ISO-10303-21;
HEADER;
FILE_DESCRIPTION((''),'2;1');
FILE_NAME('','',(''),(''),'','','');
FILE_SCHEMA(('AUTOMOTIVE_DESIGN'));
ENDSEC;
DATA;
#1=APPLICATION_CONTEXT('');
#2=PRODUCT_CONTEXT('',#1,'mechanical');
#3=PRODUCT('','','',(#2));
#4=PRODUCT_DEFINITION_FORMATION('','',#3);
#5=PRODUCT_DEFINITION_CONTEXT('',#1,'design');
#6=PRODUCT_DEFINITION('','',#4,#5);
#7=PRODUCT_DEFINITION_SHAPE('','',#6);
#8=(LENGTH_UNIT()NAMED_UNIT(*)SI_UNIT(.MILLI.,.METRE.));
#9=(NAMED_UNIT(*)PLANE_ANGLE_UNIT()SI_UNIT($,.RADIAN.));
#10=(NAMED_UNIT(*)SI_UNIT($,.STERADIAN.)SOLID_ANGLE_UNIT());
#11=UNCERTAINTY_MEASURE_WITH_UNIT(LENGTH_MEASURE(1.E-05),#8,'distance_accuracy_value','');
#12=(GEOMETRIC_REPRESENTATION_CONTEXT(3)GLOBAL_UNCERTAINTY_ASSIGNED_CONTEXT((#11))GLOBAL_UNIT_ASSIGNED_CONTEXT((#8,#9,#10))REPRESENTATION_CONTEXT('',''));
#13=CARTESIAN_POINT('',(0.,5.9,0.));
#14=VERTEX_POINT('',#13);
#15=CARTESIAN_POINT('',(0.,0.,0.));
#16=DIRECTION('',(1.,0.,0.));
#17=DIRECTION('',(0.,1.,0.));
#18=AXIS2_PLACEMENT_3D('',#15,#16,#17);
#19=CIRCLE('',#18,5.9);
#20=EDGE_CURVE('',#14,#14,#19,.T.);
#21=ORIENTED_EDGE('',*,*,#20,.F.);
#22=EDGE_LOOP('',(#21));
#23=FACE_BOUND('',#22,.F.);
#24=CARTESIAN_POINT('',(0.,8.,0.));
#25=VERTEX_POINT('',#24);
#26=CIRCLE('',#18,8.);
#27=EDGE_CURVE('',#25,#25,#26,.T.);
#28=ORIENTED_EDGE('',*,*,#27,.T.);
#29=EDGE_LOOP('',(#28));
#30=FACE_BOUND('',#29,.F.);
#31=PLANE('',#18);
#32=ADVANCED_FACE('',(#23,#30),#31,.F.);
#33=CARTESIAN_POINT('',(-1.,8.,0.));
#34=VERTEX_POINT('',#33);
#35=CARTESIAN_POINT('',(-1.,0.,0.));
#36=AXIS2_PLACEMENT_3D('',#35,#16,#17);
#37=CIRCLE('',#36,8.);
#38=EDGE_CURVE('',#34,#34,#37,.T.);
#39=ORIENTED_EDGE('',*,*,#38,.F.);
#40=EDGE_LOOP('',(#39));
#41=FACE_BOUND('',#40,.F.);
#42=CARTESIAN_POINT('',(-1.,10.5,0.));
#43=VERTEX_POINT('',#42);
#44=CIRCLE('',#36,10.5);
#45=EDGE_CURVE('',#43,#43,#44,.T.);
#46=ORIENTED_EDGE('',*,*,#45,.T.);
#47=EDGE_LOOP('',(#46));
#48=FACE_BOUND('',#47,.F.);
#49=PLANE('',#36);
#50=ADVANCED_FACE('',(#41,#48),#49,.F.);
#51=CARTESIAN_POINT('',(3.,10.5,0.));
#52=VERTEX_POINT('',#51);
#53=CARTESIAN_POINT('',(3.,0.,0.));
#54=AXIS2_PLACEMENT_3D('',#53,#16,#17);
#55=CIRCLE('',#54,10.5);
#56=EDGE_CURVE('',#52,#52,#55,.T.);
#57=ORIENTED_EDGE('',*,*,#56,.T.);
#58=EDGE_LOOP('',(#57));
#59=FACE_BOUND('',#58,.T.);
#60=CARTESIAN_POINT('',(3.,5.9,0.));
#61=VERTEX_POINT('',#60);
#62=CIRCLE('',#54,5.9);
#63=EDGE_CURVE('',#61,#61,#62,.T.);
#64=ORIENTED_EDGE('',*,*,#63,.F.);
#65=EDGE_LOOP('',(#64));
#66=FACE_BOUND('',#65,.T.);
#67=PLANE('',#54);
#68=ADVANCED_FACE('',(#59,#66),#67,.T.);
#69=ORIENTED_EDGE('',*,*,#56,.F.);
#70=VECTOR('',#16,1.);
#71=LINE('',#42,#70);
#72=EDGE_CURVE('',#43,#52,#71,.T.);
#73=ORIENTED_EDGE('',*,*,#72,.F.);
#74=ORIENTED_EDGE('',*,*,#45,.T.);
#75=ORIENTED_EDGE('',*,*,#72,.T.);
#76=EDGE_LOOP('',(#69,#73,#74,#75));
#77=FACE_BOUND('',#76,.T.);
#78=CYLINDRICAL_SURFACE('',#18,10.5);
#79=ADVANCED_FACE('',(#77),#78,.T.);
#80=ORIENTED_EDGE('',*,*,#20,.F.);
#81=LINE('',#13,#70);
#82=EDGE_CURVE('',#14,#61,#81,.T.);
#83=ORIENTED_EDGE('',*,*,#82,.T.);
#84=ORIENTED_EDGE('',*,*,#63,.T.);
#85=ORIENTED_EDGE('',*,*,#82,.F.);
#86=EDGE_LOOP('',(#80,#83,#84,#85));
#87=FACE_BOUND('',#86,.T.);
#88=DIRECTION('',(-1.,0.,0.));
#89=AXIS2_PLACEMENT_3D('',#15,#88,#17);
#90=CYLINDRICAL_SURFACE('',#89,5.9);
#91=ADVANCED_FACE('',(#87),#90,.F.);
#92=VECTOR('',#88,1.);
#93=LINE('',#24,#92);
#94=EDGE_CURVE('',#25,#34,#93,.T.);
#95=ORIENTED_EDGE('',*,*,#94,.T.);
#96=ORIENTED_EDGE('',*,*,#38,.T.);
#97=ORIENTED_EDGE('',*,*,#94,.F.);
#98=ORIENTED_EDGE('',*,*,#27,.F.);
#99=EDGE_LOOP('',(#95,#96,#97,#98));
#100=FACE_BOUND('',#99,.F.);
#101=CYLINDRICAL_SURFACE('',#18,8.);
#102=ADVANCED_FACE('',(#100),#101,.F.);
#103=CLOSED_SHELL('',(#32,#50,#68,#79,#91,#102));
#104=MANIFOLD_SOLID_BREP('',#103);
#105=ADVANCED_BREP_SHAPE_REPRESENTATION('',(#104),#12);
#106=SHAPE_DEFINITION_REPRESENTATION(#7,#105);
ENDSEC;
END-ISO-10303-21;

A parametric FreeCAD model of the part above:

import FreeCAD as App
import Part
import Sketcher
from FreeCAD import Vector
Q = App.Units.Quantity

doc = App.newDocument("Part")
body = doc.addObject("PartDesign::Body", "Body")

sketch1 = body.newObject("Sketcher::SketchObject", "Sketch")
sketch1.AttachmentSupport = (doc.getObject("YZ_Plane"), [""])
sketch1.MapMode = "FlatFace"
sketch1.addGeometry(Part.Circle(Vector(0, 0, 0), Vector(0, 0, 1), 8), False)
sketch1.addGeometry(Part.Circle(Vector(0, 0, 0), Vector(0, 0, 1), 5.9), False)
sketch1.addConstraint(Sketcher.Constraint("Coincident", 0, 3, -1, 1))
sketch1.addConstraint(Sketcher.Constraint("Coincident", 1, 3, -1, 1))
sketch1.addConstraint(Sketcher.Constraint("Diameter", 0, Q("16 mm")))
sketch1.addConstraint(Sketcher.Constraint("Diameter", 1, Q("11.8 mm")))
pad1 = body.newObject("PartDesign::Pad", "Pad")
pad1.Profile = sketch1
pad1.Length = 3

sketch2 = body.newObject("Sketcher::SketchObject", "Sketch001")
sketch2.AttachmentSupport = (doc.getObject("YZ_Plane"), [""])
sketch2.MapMode = "FlatFace"
sketch2.addGeometry(Part.Circle(Vector(0, 0, 0), Vector(0, 0, 1), 10.5), False)
sketch2.addGeometry(Part.Circle(Vector(0, 0, 0), Vector(0, 0, 1), 8), False)
sketch2.addConstraint(Sketcher.Constraint("Coincident", 0, 3, -1, 1))
sketch2.addConstraint(Sketcher.Constraint("Coincident", 1, 3, -1, 1))
sketch2.addConstraint(Sketcher.Constraint("Diameter", 0, Q("21 mm")))
sketch2.addConstraint(Sketcher.Constraint("Diameter", 1, Q("16 mm")))
pad2 = body.newObject("PartDesign::Pad", "Pad001")
pad2.Profile = sketch2
pad2.Type = "TwoLengths"
pad2.Length = 3
pad2.Length2 = 1

doc.recompute()
